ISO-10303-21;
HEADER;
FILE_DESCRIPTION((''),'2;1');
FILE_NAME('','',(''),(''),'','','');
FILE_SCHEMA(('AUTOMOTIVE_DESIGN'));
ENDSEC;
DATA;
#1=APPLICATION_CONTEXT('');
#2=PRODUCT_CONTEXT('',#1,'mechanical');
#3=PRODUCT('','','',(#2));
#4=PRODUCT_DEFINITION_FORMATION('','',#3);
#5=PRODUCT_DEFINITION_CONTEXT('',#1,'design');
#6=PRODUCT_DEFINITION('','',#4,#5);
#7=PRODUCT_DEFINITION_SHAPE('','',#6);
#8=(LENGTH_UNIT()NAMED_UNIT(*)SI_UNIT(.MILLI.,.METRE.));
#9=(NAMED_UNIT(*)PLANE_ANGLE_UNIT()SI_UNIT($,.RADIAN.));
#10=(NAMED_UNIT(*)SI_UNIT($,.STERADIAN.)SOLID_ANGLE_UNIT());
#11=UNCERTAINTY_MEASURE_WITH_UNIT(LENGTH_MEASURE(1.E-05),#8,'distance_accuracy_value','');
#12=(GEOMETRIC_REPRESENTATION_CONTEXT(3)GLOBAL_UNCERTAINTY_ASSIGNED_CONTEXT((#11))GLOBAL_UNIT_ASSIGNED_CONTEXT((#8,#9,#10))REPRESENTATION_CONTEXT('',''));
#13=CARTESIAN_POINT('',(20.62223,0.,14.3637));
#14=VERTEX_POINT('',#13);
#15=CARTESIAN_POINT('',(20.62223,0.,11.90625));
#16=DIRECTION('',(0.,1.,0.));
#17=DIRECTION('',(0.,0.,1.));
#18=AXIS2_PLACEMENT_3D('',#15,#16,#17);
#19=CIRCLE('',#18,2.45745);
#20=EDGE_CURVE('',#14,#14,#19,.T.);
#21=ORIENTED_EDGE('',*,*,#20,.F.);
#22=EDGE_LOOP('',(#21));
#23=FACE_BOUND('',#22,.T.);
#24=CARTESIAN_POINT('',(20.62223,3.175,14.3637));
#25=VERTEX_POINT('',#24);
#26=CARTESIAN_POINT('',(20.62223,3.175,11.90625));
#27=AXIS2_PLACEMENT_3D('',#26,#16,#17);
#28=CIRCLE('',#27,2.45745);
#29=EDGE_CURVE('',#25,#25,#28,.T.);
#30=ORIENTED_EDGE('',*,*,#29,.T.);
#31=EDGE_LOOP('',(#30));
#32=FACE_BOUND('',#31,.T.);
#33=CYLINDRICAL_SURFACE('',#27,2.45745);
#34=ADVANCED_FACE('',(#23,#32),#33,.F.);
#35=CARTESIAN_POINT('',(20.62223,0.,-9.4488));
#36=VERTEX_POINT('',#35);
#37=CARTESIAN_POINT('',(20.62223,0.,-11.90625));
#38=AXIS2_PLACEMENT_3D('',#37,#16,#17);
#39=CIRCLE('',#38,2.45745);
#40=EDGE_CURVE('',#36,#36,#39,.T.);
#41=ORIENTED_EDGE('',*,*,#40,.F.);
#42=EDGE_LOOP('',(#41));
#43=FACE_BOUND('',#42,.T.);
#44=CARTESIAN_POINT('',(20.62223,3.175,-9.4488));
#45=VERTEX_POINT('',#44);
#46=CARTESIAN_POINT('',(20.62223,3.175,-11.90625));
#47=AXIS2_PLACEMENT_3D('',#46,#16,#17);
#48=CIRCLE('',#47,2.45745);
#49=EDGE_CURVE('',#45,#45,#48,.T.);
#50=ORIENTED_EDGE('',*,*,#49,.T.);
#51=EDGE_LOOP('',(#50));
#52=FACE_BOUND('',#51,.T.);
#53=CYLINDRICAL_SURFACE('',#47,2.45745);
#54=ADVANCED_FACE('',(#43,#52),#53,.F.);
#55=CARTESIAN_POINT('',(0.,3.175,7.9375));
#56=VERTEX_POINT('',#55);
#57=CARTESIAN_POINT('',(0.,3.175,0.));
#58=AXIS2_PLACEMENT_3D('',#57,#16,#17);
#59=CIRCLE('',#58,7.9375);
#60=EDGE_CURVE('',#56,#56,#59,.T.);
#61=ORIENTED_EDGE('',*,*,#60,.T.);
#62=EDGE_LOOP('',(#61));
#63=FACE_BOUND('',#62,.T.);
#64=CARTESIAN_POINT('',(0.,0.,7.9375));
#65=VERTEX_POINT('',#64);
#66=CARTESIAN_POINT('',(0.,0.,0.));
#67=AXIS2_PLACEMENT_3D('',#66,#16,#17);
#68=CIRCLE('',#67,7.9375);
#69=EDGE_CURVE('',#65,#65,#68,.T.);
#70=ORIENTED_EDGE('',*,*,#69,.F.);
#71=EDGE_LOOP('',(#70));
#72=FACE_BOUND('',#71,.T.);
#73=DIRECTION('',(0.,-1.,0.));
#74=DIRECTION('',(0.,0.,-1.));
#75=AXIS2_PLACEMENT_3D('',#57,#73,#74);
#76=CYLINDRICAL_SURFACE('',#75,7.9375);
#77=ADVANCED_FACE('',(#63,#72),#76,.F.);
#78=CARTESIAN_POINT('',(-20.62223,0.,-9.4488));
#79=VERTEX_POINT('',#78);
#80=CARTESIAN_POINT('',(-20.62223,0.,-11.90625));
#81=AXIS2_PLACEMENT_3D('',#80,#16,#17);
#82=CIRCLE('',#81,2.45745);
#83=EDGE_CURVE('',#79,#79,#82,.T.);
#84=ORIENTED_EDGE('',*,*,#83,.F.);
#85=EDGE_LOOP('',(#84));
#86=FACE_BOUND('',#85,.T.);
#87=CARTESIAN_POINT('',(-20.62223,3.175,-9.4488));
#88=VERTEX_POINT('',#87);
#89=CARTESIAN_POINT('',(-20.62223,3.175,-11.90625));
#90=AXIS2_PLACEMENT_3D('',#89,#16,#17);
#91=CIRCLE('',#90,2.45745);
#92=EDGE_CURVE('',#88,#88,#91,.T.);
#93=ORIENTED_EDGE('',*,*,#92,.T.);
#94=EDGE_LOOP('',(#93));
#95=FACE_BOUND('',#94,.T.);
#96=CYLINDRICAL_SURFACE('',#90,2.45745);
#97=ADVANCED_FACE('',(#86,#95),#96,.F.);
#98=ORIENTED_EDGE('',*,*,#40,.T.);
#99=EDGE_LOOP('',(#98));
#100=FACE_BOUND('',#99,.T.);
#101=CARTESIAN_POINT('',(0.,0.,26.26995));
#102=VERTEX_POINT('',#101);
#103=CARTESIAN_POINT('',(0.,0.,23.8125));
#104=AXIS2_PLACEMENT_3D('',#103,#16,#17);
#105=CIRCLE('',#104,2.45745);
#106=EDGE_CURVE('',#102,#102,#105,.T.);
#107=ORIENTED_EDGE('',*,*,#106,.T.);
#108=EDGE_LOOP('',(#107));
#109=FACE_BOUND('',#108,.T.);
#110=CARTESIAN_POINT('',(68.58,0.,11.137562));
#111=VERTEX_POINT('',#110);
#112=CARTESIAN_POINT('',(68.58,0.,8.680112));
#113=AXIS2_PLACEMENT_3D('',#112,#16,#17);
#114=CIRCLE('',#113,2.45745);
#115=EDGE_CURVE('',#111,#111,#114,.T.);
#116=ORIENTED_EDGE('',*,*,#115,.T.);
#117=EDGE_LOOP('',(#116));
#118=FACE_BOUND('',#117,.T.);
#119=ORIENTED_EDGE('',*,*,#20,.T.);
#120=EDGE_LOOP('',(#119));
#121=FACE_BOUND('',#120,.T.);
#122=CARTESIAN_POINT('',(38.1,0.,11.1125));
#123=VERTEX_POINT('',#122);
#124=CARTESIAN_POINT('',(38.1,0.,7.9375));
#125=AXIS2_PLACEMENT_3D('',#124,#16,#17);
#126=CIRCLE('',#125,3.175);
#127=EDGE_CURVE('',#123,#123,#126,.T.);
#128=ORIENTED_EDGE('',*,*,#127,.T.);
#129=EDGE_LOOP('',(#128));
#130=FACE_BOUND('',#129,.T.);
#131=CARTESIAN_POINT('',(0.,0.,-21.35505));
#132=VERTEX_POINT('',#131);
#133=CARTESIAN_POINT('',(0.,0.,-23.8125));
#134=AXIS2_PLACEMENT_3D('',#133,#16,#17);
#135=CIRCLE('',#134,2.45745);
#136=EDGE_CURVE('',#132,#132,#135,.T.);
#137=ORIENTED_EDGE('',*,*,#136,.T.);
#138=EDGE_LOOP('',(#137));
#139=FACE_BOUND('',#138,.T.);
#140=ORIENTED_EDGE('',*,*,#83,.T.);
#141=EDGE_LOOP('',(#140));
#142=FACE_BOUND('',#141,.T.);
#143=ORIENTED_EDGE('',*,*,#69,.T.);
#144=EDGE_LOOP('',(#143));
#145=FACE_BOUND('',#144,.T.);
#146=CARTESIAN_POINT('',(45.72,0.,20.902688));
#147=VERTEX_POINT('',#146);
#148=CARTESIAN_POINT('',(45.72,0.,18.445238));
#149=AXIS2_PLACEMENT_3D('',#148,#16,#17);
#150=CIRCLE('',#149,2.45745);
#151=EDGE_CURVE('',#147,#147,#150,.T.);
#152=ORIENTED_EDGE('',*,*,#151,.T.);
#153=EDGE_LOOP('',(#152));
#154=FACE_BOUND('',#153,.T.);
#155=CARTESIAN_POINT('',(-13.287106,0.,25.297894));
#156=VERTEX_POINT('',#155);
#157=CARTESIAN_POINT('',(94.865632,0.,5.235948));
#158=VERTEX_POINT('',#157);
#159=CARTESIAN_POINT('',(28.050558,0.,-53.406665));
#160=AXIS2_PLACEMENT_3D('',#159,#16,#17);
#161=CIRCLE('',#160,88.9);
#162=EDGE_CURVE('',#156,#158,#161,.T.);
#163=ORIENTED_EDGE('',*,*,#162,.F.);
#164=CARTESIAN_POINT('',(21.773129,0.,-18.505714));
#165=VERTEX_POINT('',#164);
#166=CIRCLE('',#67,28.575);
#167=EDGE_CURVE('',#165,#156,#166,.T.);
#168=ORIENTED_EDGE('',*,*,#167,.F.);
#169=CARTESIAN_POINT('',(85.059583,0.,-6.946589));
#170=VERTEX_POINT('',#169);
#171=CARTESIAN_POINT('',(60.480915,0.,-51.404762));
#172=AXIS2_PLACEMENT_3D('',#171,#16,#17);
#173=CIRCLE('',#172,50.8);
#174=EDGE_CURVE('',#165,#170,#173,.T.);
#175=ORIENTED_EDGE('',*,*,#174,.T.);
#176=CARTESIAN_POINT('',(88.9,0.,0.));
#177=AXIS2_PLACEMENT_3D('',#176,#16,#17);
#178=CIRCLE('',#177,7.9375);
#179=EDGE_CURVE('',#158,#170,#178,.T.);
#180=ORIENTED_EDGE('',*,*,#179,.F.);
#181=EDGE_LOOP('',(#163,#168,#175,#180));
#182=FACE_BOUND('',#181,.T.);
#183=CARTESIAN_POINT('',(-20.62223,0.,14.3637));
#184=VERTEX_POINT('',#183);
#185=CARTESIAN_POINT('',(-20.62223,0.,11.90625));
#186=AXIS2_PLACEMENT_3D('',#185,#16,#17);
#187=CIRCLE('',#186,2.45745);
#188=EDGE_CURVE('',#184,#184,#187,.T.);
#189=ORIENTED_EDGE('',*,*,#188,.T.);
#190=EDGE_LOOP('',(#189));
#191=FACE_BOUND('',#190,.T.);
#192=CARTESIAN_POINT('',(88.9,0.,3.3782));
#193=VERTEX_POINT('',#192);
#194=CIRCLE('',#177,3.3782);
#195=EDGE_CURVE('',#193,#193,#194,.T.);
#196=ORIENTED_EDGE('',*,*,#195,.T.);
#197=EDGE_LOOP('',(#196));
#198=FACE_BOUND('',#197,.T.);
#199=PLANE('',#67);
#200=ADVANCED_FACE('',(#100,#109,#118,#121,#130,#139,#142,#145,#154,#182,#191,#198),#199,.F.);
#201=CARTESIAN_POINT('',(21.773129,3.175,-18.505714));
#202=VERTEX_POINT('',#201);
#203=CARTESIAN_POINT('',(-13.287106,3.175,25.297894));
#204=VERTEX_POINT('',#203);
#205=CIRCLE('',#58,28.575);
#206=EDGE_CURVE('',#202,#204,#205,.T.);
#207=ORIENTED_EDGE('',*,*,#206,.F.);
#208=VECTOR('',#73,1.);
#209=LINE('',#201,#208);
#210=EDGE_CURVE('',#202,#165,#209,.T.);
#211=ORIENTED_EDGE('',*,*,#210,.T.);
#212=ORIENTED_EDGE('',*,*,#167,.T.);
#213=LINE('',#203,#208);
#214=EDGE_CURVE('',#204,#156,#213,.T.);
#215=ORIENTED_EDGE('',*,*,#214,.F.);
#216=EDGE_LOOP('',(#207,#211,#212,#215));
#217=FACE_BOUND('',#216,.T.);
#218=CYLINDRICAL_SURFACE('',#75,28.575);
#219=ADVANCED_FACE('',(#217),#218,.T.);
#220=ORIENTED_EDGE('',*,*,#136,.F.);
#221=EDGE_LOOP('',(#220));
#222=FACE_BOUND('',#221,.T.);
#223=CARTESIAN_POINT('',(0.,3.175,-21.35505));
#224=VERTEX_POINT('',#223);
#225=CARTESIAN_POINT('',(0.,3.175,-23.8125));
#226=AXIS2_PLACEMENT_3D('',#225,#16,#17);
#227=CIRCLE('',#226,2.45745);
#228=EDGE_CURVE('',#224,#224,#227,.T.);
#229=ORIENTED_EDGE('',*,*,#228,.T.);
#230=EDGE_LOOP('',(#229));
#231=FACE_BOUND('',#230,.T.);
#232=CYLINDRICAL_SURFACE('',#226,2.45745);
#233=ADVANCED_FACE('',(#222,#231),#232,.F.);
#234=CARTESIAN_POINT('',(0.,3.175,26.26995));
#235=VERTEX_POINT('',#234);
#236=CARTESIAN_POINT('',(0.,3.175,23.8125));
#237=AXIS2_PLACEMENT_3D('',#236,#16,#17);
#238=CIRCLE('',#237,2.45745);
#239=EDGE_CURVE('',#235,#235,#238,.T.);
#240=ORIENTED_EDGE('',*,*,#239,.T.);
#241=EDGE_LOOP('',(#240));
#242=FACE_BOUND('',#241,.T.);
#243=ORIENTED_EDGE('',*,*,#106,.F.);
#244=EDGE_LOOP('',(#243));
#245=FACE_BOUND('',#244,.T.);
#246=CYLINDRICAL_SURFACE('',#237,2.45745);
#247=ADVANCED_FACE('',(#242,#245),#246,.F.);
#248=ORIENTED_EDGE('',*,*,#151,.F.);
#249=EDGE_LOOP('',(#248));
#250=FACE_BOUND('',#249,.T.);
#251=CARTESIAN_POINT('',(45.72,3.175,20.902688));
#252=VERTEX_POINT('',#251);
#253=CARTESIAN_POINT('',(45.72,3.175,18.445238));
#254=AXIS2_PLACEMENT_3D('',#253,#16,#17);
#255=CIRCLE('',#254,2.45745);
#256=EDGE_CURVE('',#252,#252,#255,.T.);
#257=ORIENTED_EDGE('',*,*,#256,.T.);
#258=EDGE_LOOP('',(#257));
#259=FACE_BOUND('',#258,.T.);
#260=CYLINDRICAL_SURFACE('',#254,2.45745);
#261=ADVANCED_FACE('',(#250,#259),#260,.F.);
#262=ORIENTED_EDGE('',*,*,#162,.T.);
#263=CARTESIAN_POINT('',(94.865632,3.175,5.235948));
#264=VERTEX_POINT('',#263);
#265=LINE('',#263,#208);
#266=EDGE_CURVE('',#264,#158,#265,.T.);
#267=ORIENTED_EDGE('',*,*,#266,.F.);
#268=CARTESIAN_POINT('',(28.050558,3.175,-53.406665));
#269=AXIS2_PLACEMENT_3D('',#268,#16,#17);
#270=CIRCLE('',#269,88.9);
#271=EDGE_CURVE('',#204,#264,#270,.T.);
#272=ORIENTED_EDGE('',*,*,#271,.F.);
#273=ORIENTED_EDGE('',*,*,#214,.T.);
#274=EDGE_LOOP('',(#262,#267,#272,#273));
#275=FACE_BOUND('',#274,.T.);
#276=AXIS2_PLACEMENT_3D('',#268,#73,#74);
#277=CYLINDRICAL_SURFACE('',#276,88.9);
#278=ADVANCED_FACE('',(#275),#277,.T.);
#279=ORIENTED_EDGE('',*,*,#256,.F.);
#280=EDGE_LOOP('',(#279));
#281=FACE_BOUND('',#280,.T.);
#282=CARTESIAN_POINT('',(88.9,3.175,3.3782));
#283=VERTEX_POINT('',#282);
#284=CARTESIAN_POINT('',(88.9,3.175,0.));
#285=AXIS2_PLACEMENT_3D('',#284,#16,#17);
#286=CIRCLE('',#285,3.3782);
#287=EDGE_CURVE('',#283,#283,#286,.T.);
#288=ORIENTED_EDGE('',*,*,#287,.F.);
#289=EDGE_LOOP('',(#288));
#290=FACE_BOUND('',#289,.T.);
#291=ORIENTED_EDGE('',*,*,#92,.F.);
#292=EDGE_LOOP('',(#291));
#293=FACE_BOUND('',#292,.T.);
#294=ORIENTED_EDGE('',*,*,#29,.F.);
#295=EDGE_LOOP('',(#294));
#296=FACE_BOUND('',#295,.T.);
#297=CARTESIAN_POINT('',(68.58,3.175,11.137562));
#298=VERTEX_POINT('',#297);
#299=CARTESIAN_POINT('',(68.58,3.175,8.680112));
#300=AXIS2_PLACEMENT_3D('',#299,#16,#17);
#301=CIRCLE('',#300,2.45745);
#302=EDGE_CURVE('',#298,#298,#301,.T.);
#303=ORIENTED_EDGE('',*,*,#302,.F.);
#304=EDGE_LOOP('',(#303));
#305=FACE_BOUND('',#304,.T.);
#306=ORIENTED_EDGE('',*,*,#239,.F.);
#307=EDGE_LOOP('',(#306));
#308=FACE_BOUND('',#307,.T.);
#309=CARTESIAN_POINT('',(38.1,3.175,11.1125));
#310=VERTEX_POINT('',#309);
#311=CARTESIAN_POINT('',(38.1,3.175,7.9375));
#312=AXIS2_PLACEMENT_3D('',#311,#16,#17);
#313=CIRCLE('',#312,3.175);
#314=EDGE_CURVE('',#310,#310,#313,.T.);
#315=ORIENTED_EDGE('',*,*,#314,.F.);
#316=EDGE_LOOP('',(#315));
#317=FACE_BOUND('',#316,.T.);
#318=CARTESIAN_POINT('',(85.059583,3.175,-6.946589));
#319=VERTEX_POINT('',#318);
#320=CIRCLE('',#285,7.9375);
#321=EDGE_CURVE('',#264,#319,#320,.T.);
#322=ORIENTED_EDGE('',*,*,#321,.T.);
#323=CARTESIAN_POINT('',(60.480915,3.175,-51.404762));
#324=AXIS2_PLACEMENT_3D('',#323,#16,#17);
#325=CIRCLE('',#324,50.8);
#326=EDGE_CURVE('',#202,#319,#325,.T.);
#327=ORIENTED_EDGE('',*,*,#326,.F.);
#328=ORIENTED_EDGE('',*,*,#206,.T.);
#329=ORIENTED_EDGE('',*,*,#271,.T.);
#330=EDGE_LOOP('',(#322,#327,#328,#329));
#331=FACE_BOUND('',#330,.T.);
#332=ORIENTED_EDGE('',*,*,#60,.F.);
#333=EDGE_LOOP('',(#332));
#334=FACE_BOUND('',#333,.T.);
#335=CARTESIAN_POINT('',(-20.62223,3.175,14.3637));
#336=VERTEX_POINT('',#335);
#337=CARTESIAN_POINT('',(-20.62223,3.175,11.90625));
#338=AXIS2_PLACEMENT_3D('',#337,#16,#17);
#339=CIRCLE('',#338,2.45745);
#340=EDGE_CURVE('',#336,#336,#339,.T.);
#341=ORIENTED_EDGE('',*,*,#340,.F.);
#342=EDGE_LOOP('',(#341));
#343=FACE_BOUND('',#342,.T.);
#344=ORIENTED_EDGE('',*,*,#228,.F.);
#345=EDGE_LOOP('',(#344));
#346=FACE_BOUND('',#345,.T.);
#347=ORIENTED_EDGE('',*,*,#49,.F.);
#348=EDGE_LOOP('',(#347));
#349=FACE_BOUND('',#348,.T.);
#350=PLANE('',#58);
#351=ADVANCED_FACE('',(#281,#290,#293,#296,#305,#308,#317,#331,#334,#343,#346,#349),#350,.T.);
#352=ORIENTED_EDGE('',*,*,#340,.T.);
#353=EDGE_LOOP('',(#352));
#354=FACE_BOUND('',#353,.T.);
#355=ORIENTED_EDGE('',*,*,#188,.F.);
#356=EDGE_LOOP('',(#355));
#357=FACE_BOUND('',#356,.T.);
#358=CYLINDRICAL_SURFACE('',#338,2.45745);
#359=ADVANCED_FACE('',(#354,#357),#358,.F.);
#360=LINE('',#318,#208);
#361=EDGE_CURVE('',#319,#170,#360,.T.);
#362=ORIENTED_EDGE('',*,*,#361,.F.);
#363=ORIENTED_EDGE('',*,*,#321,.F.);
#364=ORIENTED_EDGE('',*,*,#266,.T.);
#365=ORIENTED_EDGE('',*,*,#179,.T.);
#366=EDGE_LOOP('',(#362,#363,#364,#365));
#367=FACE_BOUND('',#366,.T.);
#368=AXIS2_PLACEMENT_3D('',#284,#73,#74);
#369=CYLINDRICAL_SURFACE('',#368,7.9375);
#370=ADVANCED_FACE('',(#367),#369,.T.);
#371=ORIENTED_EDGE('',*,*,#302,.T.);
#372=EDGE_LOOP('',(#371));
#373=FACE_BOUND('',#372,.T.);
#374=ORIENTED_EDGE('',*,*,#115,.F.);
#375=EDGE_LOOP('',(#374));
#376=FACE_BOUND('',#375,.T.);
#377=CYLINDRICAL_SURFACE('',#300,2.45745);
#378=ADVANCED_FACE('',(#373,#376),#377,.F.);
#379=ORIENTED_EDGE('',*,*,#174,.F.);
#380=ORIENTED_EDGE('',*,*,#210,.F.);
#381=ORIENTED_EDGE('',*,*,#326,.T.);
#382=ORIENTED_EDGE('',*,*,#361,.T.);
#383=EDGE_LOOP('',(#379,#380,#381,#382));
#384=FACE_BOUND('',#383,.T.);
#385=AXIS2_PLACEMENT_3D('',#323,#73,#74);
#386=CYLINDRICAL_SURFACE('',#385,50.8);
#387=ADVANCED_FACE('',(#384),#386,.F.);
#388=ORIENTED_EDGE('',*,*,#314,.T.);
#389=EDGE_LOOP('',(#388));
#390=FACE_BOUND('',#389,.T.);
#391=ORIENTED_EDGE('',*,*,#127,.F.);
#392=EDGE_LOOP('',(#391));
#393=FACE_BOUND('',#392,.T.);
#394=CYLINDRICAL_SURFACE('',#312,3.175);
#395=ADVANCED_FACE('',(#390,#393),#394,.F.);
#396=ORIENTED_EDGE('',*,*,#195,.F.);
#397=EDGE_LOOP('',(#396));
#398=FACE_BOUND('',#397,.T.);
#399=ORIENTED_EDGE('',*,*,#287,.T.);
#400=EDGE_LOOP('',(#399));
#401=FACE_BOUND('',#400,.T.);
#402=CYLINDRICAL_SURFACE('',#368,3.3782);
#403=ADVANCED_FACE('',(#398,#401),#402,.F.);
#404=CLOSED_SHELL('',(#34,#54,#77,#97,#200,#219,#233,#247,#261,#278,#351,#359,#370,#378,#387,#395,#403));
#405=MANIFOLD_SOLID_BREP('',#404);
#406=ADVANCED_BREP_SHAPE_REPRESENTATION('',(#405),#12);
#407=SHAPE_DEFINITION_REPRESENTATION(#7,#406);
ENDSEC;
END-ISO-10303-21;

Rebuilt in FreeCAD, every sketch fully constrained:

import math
import FreeCAD as App
import Part
import Sketcher
from FreeCAD import Vector
Q = App.Units.Quantity

doc = App.newDocument("Part")
body = doc.addObject("PartDesign::Body", "Body")

# Sketch on XZ plane
sketch1 = body.newObject("Sketcher::SketchObject", "Sketch")
sketch1.AttachmentSupport = (doc.getObject("XZ_Plane"), [""])
sketch1.MapMode = "FlatFace"
sketch1.addGeometry([
    Part.ArcOfCircle(Part.Circle(Vector(0, 0, 0), Vector(0, 0, 1), 28.6), math.radians(118), math.radians(320)),  # 0
    Part.ArcOfCircle(Part.Circle(Vector(28.1, -53.4, 0), Vector(0, 0, 1), 88.9), math.radians(41), math.radians(118)),  # 1
    Part.ArcOfCircle(Part.Circle(Vector(88.9, 0, 0), Vector(0, 0, 1), 7.9), math.radians(-119), math.radians(41)),  # 2
    Part.ArcOfCircle(Part.Circle(Vector(60.5, -51.4, 0), Vector(0, 0, 1), 50.8), math.radians(61), math.radians(140)),  # 3
    Part.Circle(Vector(0, 0, 0), Vector(0, 0, 1), 7.9),  # 4
    Part.Circle(Vector(88.9, 0, 0), Vector(0, 0, 1), 3.4),  # 5
], False)
sketch1.addConstraint([
    Sketcher.Constraint("Tangent", 0, 1, 1, 2),
    Sketcher.Constraint("Tangent", 1, 1, 2, 2),
    Sketcher.Constraint("Tangent", 2, 1, 3, 1),
    Sketcher.Constraint("Tangent", 3, 2, 0, 2),
    Sketcher.Constraint("Coincident", 0, 3, -1, 1),
    Sketcher.Constraint("Coincident", 4, 3, -1, 1),
    Sketcher.Constraint("Coincident", 5, 3, 2, 3),
    Sketcher.Constraint("Equal", 2, 4),
    Sketcher.Constraint("PointOnObject", 2, 3, -1),
    Sketcher.Constraint("Radius", 3, Q("2 in")),
    Sketcher.Constraint("Radius", 1, Q("3.5 in")),
    Sketcher.Constraint("Diameter", 4, Q("0.625 in")),
    Sketcher.Constraint("Diameter", 5, Q("0.266 in")),
    Sketcher.Constraint("Radius", 0, Q("1.125 in")),
    Sketcher.Constraint("DistanceX", -1, 1, 2, 3, Q("3.5 in")),
])
pad1 = body.newObject("PartDesign::Pad", "Pad")
pad1.Profile = sketch1
pad1.Length = Q("0.125 in")
pad1.Reversed = True

# Sketch on XZ plane
sketch2 = body.newObject("Sketcher::SketchObject", "Sketch001")
sketch2.AttachmentSupport = (doc.getObject("XZ_Plane"), [""])
sketch2.MapMode = "FlatFace"
sketch2.AttachmentOffset = App.Placement(Vector(0, 0, -0.125 * 25.4), App.Rotation())
sketch2.addGeometry([
    Part.Circle(Vector(0, 23.8, 0), Vector(0, 0, 1), 2.5),  # 0
    Part.Circle(Vector(-20.6, -11.9, 0), Vector(0, 0, 1), 2.5),  # 1
    Part.Circle(Vector(20.6, -11.9, 0), Vector(0, 0, 1), 2.5),  # 2
    Part.Circle(Vector(20.6, 11.9, 0), Vector(0, 0, 1), 2.5),  # 3
    Part.Circle(Vector(-20.6, 11.9, 0), Vector(0, 0, 1), 2.5),  # 4
    Part.Circle(Vector(0, -23.8, 0), Vector(0, 0, 1), 2.5),  # 5
], False)
sketch2.addConstraint([
    Sketcher.Constraint("Equal", 0, 1),
    Sketcher.Constraint("Equal", 1, 2),
    Sketcher.Constraint("Equal", 2, 3),
    Sketcher.Constraint("Equal", 3, 4),
    Sketcher.Constraint("Equal", 4, 5),
    Sketcher.Constraint("Symmetric", 1, 3, 3, 3, -1, 1),
    Sketcher.Constraint("Symmetric", 2, 3, 4, 3, -1, 1),
    Sketcher.Constraint("Symmetric", 0, 3, 5, 3, -1, 1),
    Sketcher.Constraint("Symmetric", 1, 3, 2, 3, -2),
    Sketcher.Constraint("PointOnObject", 0, 3, -2),
    Sketcher.Constraint("Diameter", 0, Q("0.1935 in")),
    Sketcher.Constraint("DistanceY", -1, 1, 0, 3, Q("0.9375 in")),
    Sketcher.Constraint("DistanceY", 1, 3, -1, 1, Q("0.46875 in")),
    Sketcher.Constraint("DistanceX", 1, 3, -1, 1, 20.62223),
])
doc.recompute()
hole = body.newObject("PartDesign::Hole", "Hole")
hole.Profile = sketch2
hole.ThreadType = "None"
hole.Diameter = Q("0.1935 in")
hole.DepthType = "ThroughAll"
hole.Reversed = True

# Sketch on XZ plane
sketch3 = body.newObject("Sketcher::SketchObject", "Sketch002")
sketch3.AttachmentSupport = (doc.getObject("XZ_Plane"), [""])
sketch3.MapMode = "FlatFace"
sketch3.AttachmentOffset = App.Placement(Vector(0, 0, -0.125 * 25.4), App.Rotation())
sketch3.addGeometry(Part.Circle(Vector(38.1, 7.9, 0), Vector(0, 0, 1), 3.2), False)
sketch3.addConstraint([
    Sketcher.Constraint("Diameter", 0, Q("0.25 in")),
    Sketcher.Constraint("DistanceX", -1, 1, 0, 3, Q("1.5 in")),
    Sketcher.Constraint("DistanceY", -1, 1, 0, 3, Q("0.3125 in")),
])
doc.recompute()
hole2 = body.newObject("PartDesign::Hole", "Hole001")
hole2.Profile = sketch3
hole2.ThreadType = "None"
hole2.Diameter = Q("0.25 in")
hole2.DepthType = "ThroughAll"
hole2.Reversed = True

# Sketch on XZ plane
sketch4 = body.newObject("Sketcher::SketchObject", "Sketch003")
sketch4.AttachmentSupport = (doc.getObject("XZ_Plane"), [""])
sketch4.MapMode = "FlatFace"
sketch4.AttachmentOffset = App.Placement(Vector(0, 0, -0.125 * 25.4), App.Rotation())
sketch4.addGeometry([
    Part.Circle(Vector(68.6, 8.7, 0), Vector(0, 0, 1), 2.5),
    Part.Circle(Vector(45.7, 18.4, 0), Vector(0, 0, 1), 2.5),
], False)
sketch4.addConstraint([
    Sketcher.Constraint("Equal", 0, 1),
    Sketcher.Constraint("Diameter", 0, Q("0.1935 in")),
    Sketcher.Constraint("DistanceX", -1, 1, 0, 3, Q("2.7 in")),
    Sketcher.Constraint("DistanceX", -1, 1, 1, 3, Q("1.8 in")),
    Sketcher.Constraint("DistanceY", -1, 1, 1, 3, 18.445238),
    Sketcher.Constraint("DistanceY", -1, 1, 0, 3, 8.680112),
])
doc.recompute()
hole3 = body.newObject("PartDesign::Hole", "Hole002")
hole3.Profile = sketch4
hole3.ThreadType = "None"
hole3.Diameter = Q("0.1935 in")
hole3.DepthType = "Dimension"
hole3.Depth = Q("0.474 in")
hole3.DrillPoint = "Angled"
hole3.DrillPointAngle = 118
hole3.Reversed = True

doc.recompute()
